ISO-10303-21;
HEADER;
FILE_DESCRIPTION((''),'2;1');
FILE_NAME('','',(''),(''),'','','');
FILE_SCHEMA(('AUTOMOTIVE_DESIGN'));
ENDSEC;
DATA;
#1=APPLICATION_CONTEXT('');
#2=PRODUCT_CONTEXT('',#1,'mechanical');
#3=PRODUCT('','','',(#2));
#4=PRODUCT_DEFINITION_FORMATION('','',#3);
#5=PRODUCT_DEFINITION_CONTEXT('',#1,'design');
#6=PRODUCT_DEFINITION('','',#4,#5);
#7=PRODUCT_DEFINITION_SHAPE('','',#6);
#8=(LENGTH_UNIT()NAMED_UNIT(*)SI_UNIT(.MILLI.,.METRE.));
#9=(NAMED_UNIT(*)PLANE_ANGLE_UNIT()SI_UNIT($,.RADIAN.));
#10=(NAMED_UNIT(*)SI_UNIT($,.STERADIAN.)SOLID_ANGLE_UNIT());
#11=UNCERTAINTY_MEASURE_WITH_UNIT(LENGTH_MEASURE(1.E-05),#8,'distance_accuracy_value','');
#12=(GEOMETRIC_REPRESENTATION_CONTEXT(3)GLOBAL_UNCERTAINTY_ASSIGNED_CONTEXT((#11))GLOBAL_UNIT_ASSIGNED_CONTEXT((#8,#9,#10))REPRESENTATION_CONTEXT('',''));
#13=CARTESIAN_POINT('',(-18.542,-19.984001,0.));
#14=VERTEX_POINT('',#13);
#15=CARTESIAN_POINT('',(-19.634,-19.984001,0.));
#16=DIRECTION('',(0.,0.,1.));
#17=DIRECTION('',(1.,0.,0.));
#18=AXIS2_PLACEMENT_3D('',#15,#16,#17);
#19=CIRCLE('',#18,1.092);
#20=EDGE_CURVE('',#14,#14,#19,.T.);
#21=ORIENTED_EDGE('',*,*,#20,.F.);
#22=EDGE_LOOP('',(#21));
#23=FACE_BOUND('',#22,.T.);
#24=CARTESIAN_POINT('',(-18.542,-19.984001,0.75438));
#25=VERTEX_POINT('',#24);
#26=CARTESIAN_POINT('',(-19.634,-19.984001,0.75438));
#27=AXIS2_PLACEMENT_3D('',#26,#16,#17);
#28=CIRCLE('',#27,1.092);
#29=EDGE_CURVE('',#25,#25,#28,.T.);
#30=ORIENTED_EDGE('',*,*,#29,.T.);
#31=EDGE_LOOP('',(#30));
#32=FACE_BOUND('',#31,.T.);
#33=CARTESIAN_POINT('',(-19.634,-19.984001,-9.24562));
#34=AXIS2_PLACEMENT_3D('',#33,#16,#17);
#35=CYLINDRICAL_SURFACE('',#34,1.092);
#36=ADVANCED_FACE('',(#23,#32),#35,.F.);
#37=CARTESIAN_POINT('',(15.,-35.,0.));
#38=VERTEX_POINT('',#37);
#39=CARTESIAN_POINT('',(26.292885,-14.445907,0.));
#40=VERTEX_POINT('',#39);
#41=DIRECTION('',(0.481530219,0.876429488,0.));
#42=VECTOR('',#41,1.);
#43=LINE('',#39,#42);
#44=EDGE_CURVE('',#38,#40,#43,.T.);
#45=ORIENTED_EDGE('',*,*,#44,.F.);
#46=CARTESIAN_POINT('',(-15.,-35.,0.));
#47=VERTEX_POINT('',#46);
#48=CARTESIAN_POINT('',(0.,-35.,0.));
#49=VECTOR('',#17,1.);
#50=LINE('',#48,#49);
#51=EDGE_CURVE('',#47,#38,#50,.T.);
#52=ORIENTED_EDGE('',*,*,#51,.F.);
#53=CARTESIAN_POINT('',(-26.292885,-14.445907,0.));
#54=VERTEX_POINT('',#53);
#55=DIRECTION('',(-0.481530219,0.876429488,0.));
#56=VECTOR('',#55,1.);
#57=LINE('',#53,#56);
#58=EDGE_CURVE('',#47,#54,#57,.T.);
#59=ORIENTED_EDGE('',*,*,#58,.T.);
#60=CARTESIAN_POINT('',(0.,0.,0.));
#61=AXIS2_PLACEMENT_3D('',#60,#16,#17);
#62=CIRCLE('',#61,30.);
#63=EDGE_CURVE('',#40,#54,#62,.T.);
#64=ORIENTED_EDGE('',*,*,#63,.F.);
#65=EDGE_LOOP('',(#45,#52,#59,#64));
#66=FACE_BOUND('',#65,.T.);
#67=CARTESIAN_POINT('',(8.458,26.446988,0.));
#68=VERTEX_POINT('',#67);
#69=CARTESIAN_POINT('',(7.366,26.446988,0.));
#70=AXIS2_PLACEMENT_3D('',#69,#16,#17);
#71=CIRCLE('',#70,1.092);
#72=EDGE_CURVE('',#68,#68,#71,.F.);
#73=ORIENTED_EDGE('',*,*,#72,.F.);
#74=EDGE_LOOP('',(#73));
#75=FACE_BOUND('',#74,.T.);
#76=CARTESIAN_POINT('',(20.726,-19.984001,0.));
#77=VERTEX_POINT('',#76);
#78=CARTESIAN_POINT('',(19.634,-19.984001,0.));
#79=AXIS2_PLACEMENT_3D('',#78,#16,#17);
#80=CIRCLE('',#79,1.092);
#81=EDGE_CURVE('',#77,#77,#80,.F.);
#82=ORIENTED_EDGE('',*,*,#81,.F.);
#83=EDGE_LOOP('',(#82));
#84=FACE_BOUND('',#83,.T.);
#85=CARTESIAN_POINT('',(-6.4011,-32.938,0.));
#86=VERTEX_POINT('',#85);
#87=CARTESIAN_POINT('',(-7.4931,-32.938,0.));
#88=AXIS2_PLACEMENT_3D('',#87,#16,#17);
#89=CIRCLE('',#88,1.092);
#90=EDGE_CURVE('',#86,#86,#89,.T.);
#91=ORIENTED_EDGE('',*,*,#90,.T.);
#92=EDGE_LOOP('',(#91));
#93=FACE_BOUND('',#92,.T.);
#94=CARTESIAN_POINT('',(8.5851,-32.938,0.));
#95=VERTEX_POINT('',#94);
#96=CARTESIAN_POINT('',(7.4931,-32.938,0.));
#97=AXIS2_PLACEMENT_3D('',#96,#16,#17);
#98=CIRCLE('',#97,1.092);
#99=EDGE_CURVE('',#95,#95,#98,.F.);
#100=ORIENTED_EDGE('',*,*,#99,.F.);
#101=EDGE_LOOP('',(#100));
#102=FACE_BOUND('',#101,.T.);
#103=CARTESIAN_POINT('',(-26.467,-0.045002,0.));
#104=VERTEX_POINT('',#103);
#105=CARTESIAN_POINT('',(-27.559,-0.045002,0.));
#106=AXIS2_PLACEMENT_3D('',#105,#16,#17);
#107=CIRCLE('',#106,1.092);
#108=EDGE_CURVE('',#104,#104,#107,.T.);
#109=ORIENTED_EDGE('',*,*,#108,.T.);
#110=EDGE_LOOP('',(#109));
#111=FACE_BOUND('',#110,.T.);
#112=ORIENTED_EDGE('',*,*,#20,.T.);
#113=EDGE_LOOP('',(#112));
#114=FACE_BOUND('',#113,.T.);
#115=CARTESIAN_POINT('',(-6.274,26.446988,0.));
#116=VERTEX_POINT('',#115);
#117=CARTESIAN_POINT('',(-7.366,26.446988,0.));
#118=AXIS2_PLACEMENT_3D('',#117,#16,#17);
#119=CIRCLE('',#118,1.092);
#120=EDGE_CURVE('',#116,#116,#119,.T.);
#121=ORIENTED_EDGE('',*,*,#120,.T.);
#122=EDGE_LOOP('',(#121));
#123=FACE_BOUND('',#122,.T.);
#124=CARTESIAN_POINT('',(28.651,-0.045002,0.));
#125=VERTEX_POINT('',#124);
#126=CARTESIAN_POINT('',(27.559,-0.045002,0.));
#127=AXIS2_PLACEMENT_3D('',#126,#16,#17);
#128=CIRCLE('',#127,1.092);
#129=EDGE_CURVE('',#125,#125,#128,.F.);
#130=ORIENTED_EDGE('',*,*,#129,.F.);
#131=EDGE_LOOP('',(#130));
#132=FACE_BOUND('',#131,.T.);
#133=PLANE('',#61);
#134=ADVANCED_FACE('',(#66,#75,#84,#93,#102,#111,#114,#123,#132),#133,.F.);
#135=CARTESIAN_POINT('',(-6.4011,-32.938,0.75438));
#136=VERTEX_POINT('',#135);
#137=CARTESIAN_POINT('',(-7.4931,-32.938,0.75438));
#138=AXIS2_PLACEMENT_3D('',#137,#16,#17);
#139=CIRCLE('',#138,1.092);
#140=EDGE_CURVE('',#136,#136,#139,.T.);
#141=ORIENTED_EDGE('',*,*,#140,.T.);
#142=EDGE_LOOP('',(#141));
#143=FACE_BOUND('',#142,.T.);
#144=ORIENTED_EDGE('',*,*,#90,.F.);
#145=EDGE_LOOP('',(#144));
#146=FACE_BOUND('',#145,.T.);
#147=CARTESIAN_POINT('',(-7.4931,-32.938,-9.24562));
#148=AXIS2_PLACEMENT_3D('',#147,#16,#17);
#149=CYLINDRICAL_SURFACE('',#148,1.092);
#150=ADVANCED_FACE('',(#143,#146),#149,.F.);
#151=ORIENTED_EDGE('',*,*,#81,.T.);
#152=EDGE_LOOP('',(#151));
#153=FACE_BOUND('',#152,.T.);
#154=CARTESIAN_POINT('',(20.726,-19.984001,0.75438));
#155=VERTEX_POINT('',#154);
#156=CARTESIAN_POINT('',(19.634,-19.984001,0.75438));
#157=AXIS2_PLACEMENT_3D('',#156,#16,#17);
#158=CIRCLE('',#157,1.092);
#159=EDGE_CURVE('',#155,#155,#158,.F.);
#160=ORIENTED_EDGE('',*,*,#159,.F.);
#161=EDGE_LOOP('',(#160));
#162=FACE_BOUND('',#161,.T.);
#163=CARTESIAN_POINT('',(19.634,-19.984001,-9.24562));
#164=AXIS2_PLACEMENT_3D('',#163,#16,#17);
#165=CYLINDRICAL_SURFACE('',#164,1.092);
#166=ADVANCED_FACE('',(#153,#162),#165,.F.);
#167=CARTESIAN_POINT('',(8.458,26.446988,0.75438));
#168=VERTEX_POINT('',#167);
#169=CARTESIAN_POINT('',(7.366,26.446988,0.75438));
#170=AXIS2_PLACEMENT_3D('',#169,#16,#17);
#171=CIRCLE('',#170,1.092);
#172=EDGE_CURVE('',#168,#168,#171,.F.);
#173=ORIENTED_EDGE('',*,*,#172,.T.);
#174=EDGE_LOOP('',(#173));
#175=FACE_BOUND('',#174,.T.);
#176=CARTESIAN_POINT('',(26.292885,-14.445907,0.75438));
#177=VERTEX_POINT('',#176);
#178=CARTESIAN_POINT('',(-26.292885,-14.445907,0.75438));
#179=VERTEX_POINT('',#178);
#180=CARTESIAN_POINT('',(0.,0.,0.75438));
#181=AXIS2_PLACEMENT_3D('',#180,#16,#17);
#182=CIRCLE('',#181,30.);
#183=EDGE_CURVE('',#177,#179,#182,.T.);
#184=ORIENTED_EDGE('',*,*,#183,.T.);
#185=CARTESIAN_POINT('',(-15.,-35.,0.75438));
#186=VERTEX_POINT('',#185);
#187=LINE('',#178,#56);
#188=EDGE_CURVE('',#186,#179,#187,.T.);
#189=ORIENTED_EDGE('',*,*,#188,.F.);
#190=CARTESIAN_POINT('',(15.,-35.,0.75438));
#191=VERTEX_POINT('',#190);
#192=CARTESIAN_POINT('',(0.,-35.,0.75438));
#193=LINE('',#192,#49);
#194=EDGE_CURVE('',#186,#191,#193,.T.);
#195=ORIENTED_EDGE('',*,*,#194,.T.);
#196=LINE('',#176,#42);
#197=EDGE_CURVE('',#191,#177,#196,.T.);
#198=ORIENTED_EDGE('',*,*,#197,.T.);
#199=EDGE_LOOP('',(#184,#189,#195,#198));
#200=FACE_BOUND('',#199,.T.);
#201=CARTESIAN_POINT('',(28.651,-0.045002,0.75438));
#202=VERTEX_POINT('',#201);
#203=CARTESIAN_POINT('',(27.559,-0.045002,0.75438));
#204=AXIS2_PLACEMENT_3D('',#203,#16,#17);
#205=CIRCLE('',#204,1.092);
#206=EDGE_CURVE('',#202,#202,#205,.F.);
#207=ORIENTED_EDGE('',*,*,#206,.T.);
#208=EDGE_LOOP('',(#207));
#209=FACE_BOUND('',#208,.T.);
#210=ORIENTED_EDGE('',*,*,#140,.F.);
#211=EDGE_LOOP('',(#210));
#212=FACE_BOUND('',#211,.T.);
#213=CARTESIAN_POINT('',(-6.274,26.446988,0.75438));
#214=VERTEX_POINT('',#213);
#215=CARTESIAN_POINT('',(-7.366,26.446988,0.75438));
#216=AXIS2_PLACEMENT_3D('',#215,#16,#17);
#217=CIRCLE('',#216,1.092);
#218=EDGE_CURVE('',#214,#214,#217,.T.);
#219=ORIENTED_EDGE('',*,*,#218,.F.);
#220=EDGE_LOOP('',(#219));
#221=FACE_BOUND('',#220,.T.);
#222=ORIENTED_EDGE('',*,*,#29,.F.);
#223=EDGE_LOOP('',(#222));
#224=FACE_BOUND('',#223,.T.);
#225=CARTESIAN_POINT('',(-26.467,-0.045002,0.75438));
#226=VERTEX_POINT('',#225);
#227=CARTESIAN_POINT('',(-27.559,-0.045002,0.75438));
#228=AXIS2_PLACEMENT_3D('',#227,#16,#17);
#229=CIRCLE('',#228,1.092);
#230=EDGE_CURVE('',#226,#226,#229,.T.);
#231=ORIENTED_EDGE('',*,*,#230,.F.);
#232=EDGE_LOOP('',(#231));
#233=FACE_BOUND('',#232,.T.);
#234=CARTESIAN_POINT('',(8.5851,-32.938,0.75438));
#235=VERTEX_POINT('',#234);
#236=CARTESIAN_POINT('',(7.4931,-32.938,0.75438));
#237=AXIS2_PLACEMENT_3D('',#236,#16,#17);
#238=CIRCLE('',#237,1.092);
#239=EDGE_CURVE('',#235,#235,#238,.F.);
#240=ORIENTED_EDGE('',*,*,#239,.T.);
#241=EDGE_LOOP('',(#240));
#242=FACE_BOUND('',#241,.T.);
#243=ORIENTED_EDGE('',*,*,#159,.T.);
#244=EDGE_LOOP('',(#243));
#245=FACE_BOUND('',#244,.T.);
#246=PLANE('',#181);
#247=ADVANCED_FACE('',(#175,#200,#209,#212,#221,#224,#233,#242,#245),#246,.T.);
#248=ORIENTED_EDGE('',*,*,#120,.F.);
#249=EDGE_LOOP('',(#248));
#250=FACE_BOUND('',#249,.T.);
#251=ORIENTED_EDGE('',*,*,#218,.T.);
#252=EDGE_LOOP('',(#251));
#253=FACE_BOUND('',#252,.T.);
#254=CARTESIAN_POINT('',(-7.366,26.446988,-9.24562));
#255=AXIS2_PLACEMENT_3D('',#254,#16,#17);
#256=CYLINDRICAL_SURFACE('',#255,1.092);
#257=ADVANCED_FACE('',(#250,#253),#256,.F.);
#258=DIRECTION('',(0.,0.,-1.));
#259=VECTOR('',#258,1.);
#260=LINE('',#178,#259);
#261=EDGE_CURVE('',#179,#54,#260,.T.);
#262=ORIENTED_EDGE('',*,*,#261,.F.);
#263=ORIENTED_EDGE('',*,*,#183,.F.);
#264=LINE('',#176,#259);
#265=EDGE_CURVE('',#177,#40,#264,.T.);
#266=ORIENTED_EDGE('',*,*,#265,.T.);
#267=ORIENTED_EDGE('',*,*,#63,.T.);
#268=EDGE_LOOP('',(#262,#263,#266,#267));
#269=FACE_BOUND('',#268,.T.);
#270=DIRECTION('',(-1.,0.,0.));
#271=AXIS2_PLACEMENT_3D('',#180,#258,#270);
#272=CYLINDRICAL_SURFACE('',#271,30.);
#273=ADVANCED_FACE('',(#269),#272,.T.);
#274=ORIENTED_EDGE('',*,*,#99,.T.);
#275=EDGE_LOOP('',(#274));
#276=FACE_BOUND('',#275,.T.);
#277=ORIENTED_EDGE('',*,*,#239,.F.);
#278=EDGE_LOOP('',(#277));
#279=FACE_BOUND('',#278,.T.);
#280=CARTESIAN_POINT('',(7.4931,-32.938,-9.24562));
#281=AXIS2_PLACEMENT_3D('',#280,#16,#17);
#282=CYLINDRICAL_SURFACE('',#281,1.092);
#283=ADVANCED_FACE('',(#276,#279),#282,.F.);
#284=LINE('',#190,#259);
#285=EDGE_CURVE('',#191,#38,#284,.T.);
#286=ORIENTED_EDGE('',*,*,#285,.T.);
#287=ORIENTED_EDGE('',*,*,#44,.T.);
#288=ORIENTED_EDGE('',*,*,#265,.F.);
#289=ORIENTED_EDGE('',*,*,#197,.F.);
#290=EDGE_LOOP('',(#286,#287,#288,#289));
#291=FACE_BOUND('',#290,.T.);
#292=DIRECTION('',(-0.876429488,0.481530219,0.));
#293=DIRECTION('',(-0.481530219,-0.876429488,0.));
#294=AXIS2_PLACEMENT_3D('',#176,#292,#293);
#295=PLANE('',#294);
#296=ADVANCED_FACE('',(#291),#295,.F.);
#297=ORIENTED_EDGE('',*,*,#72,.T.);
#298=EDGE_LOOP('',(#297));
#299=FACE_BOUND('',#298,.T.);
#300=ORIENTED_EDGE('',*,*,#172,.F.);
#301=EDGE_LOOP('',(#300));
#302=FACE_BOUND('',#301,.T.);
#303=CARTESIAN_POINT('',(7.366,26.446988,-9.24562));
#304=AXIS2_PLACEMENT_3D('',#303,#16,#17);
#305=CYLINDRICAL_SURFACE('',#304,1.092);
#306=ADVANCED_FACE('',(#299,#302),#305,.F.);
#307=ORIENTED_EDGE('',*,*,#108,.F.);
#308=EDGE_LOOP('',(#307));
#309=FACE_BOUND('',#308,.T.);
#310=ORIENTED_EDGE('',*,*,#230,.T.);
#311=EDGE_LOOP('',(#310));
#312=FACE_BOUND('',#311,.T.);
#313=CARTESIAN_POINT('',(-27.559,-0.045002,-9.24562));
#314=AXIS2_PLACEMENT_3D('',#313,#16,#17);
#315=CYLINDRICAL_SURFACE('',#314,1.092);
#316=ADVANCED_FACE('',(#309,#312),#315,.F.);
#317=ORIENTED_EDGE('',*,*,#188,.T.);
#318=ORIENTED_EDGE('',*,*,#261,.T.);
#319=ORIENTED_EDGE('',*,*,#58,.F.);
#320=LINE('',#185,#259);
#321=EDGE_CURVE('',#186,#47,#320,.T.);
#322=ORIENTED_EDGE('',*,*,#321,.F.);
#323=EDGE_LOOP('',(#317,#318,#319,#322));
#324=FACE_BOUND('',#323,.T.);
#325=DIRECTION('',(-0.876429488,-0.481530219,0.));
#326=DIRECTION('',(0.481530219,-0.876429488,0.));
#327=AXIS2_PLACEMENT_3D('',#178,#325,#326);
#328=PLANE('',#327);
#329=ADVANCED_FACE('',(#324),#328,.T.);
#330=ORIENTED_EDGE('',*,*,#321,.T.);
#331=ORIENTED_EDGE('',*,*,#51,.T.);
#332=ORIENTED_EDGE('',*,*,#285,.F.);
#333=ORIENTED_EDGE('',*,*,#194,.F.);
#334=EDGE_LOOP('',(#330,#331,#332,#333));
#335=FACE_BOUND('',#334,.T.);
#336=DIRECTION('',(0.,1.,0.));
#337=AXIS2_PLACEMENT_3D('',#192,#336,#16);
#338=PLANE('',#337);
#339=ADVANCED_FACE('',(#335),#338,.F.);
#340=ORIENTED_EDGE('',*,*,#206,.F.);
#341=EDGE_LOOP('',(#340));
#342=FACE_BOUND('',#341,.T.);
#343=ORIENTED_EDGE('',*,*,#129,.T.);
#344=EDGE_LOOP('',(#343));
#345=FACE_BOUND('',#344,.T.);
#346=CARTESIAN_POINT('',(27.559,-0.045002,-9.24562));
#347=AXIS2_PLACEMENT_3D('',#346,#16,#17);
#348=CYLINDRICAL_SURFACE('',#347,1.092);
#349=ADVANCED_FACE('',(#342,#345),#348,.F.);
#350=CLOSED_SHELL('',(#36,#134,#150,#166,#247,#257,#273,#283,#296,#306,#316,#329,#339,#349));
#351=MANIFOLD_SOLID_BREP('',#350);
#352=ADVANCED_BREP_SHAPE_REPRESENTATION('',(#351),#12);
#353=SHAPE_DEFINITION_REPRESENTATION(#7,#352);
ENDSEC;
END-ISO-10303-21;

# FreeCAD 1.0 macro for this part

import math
import FreeCAD as App
import Part
import Sketcher
from FreeCAD import Vector

doc = App.newDocument("Part")
body = doc.addObject("PartDesign::Body", "Body")

# Sketch on XY plane
sketch1 = doc.addObject("Sketcher::SketchObject", "Sketch")
body.addObject(sketch1)
sketch1.AttachmentSupport = (doc.XY_Plane, [""])
sketch1.MapMode = "FlatFace"
sketch1.addGeometry(Part.LineSegment(Vector(-15, -35, 0), Vector(15, -35, 0)), False)
sketch1.addGeometry(Part.LineSegment(Vector(15, -35, 0), Vector(26, -14, 0)), False)
sketch1.addGeometry(Part.ArcOfCircle(Part.Circle(Vector(0, 0, 0), Vector(0, 0, 1), 30), math.radians(-29), math.radians(209)), False)
sketch1.addGeometry(Part.LineSegment(Vector(-26, -14, 0), Vector(-15, -35, 0)), False)
sketch1.addConstraint(Sketcher.Constraint("Coincident", 0, 2, 1, 1))
sketch1.addConstraint(Sketcher.Constraint("Tangent", 1, 2, 2, 1))
sketch1.addConstraint(Sketcher.Constraint("Tangent", 2, 2, 3, 1))
sketch1.addConstraint(Sketcher.Constraint("Coincident", 3, 2, 0, 1))
sketch1.addConstraint(Sketcher.Constraint("Horizontal", 0))
sketch1.addConstraint(Sketcher.Constraint("Coincident", 2, 3, -1, 1))
sketch1.addConstraint(Sketcher.Constraint("Horizontal", 1, 2, 2, 2))
sketch1.addConstraint(Sketcher.Constraint("Radius", 2, 30.0))
sketch1.addConstraint(Sketcher.Constraint("DistanceX", 0, 1, 0, 2, 30.0))
sketch1.addConstraint(Sketcher.Constraint("DistanceY", 0, 2, -1, 1, 35.0))
pad1 = doc.addObject("PartDesign::Pad", "Pad")
body.addObject(pad1)
pad1.Profile = sketch1
pad1.Length = 0.75438

# Sketch on XY plane
sketch2 = doc.addObject("Sketcher::SketchObject", "Sketch001")
body.addObject(sketch2)
sketch2.AttachmentSupport = (doc.XY_Plane, [""])
sketch2.MapMode = "FlatFace"
sketch2.AttachmentOffset = App.Placement(Vector(0, 0, 0.75438), App.Rotation())
sketch2.addGeometry(Part.Circle(Vector(-7.5, -32.9, 0), Vector(0, 0, 1), 1.1), False)
sketch2.addGeometry(Part.Circle(Vector(-7.4, 26.4, 0), Vector(0, 0, 1), 1.1), False)
sketch2.addGeometry(Part.Circle(Vector(-27.6, 0, 0), Vector(0, 0, 1), 1.1), False)
sketch2.addGeometry(Part.Circle(Vector(-19.6, -20, 0), Vector(0, 0, 1), 1.1), False)
sketch2.addGeometry(Part.Circle(Vector(7.4, 26.4, 0), Vector(0, 0, 1), 1.1), False)
sketch2.addGeometry(Part.Circle(Vector(7.5, -32.9, 0), Vector(0, 0, 1), 1.1), False)
sketch2.addGeometry(Part.Circle(Vector(19.6, -20, 0), Vector(0, 0, 1), 1.1), False)
sketch2.addGeometry(Part.Circle(Vector(27.6, 0, 0), Vector(0, 0, 1), 1.1), False)
sketch2.addConstraint(Sketcher.Constraint("Equal", 0, 1))
sketch2.addConstraint(Sketcher.Constraint("Equal", 1, 2))
sketch2.addConstraint(Sketcher.Constraint("Equal", 2, 3))
sketch2.addConstraint(Sketcher.Constraint("Equal", 3, 4))
sketch2.addConstraint(Sketcher.Constraint("Equal", 4, 5))
sketch2.addConstraint(Sketcher.Constraint("Equal", 5, 6))
sketch2.addConstraint(Sketcher.Constraint("Equal", 6, 7))
sketch2.addConstraint(Sketcher.Constraint("Symmetric", 1, 3, 4, 3, -2))
sketch2.addConstraint(Sketcher.Constraint("Symmetric", 0, 3, 5, 3, -2))
sketch2.addConstraint(Sketcher.Constraint("Symmetric", 3, 3, 6, 3, -2))
sketch2.addConstraint(Sketcher.Constraint("Symmetric", 2, 3, 7, 3, -2))
sketch2.addConstraint(Sketcher.Constraint("Diameter", 0, 2.184))
sketch2.addConstraint(Sketcher.Constraint("DistanceX", 3, 3, 4, 3, 27.0))
sketch2.addConstraint(Sketcher.Constraint("DistanceY", 0, 3, -1, 1, 32.938))
sketch2.addConstraint(Sketcher.Constraint("DistanceX", 1, 3, -1, 1, 7.366))
sketch2.addConstraint(Sketcher.Constraint("DistanceX", 2, 3, -1, 1, 27.559))
sketch2.addConstraint(Sketcher.Constraint("DistanceY", 3, 3, -1, 1, 19.984001))
sketch2.addConstraint(Sketcher.Constraint("DistanceY", 3, 3, 2, 3, 19.938999))
sketch2.addConstraint(Sketcher.Constraint("DistanceX", 0, 3, -1, 1, 7.4931))
sketch2.addConstraint(Sketcher.Constraint("DistanceY", 2, 3, 1, 3, 26.49199))
pocket1 = doc.addObject("PartDesign::Pocket", "Pocket")
body.addObject(pocket1)
pocket1.Profile = sketch2
pocket1.Length = 10

doc.recompute()
